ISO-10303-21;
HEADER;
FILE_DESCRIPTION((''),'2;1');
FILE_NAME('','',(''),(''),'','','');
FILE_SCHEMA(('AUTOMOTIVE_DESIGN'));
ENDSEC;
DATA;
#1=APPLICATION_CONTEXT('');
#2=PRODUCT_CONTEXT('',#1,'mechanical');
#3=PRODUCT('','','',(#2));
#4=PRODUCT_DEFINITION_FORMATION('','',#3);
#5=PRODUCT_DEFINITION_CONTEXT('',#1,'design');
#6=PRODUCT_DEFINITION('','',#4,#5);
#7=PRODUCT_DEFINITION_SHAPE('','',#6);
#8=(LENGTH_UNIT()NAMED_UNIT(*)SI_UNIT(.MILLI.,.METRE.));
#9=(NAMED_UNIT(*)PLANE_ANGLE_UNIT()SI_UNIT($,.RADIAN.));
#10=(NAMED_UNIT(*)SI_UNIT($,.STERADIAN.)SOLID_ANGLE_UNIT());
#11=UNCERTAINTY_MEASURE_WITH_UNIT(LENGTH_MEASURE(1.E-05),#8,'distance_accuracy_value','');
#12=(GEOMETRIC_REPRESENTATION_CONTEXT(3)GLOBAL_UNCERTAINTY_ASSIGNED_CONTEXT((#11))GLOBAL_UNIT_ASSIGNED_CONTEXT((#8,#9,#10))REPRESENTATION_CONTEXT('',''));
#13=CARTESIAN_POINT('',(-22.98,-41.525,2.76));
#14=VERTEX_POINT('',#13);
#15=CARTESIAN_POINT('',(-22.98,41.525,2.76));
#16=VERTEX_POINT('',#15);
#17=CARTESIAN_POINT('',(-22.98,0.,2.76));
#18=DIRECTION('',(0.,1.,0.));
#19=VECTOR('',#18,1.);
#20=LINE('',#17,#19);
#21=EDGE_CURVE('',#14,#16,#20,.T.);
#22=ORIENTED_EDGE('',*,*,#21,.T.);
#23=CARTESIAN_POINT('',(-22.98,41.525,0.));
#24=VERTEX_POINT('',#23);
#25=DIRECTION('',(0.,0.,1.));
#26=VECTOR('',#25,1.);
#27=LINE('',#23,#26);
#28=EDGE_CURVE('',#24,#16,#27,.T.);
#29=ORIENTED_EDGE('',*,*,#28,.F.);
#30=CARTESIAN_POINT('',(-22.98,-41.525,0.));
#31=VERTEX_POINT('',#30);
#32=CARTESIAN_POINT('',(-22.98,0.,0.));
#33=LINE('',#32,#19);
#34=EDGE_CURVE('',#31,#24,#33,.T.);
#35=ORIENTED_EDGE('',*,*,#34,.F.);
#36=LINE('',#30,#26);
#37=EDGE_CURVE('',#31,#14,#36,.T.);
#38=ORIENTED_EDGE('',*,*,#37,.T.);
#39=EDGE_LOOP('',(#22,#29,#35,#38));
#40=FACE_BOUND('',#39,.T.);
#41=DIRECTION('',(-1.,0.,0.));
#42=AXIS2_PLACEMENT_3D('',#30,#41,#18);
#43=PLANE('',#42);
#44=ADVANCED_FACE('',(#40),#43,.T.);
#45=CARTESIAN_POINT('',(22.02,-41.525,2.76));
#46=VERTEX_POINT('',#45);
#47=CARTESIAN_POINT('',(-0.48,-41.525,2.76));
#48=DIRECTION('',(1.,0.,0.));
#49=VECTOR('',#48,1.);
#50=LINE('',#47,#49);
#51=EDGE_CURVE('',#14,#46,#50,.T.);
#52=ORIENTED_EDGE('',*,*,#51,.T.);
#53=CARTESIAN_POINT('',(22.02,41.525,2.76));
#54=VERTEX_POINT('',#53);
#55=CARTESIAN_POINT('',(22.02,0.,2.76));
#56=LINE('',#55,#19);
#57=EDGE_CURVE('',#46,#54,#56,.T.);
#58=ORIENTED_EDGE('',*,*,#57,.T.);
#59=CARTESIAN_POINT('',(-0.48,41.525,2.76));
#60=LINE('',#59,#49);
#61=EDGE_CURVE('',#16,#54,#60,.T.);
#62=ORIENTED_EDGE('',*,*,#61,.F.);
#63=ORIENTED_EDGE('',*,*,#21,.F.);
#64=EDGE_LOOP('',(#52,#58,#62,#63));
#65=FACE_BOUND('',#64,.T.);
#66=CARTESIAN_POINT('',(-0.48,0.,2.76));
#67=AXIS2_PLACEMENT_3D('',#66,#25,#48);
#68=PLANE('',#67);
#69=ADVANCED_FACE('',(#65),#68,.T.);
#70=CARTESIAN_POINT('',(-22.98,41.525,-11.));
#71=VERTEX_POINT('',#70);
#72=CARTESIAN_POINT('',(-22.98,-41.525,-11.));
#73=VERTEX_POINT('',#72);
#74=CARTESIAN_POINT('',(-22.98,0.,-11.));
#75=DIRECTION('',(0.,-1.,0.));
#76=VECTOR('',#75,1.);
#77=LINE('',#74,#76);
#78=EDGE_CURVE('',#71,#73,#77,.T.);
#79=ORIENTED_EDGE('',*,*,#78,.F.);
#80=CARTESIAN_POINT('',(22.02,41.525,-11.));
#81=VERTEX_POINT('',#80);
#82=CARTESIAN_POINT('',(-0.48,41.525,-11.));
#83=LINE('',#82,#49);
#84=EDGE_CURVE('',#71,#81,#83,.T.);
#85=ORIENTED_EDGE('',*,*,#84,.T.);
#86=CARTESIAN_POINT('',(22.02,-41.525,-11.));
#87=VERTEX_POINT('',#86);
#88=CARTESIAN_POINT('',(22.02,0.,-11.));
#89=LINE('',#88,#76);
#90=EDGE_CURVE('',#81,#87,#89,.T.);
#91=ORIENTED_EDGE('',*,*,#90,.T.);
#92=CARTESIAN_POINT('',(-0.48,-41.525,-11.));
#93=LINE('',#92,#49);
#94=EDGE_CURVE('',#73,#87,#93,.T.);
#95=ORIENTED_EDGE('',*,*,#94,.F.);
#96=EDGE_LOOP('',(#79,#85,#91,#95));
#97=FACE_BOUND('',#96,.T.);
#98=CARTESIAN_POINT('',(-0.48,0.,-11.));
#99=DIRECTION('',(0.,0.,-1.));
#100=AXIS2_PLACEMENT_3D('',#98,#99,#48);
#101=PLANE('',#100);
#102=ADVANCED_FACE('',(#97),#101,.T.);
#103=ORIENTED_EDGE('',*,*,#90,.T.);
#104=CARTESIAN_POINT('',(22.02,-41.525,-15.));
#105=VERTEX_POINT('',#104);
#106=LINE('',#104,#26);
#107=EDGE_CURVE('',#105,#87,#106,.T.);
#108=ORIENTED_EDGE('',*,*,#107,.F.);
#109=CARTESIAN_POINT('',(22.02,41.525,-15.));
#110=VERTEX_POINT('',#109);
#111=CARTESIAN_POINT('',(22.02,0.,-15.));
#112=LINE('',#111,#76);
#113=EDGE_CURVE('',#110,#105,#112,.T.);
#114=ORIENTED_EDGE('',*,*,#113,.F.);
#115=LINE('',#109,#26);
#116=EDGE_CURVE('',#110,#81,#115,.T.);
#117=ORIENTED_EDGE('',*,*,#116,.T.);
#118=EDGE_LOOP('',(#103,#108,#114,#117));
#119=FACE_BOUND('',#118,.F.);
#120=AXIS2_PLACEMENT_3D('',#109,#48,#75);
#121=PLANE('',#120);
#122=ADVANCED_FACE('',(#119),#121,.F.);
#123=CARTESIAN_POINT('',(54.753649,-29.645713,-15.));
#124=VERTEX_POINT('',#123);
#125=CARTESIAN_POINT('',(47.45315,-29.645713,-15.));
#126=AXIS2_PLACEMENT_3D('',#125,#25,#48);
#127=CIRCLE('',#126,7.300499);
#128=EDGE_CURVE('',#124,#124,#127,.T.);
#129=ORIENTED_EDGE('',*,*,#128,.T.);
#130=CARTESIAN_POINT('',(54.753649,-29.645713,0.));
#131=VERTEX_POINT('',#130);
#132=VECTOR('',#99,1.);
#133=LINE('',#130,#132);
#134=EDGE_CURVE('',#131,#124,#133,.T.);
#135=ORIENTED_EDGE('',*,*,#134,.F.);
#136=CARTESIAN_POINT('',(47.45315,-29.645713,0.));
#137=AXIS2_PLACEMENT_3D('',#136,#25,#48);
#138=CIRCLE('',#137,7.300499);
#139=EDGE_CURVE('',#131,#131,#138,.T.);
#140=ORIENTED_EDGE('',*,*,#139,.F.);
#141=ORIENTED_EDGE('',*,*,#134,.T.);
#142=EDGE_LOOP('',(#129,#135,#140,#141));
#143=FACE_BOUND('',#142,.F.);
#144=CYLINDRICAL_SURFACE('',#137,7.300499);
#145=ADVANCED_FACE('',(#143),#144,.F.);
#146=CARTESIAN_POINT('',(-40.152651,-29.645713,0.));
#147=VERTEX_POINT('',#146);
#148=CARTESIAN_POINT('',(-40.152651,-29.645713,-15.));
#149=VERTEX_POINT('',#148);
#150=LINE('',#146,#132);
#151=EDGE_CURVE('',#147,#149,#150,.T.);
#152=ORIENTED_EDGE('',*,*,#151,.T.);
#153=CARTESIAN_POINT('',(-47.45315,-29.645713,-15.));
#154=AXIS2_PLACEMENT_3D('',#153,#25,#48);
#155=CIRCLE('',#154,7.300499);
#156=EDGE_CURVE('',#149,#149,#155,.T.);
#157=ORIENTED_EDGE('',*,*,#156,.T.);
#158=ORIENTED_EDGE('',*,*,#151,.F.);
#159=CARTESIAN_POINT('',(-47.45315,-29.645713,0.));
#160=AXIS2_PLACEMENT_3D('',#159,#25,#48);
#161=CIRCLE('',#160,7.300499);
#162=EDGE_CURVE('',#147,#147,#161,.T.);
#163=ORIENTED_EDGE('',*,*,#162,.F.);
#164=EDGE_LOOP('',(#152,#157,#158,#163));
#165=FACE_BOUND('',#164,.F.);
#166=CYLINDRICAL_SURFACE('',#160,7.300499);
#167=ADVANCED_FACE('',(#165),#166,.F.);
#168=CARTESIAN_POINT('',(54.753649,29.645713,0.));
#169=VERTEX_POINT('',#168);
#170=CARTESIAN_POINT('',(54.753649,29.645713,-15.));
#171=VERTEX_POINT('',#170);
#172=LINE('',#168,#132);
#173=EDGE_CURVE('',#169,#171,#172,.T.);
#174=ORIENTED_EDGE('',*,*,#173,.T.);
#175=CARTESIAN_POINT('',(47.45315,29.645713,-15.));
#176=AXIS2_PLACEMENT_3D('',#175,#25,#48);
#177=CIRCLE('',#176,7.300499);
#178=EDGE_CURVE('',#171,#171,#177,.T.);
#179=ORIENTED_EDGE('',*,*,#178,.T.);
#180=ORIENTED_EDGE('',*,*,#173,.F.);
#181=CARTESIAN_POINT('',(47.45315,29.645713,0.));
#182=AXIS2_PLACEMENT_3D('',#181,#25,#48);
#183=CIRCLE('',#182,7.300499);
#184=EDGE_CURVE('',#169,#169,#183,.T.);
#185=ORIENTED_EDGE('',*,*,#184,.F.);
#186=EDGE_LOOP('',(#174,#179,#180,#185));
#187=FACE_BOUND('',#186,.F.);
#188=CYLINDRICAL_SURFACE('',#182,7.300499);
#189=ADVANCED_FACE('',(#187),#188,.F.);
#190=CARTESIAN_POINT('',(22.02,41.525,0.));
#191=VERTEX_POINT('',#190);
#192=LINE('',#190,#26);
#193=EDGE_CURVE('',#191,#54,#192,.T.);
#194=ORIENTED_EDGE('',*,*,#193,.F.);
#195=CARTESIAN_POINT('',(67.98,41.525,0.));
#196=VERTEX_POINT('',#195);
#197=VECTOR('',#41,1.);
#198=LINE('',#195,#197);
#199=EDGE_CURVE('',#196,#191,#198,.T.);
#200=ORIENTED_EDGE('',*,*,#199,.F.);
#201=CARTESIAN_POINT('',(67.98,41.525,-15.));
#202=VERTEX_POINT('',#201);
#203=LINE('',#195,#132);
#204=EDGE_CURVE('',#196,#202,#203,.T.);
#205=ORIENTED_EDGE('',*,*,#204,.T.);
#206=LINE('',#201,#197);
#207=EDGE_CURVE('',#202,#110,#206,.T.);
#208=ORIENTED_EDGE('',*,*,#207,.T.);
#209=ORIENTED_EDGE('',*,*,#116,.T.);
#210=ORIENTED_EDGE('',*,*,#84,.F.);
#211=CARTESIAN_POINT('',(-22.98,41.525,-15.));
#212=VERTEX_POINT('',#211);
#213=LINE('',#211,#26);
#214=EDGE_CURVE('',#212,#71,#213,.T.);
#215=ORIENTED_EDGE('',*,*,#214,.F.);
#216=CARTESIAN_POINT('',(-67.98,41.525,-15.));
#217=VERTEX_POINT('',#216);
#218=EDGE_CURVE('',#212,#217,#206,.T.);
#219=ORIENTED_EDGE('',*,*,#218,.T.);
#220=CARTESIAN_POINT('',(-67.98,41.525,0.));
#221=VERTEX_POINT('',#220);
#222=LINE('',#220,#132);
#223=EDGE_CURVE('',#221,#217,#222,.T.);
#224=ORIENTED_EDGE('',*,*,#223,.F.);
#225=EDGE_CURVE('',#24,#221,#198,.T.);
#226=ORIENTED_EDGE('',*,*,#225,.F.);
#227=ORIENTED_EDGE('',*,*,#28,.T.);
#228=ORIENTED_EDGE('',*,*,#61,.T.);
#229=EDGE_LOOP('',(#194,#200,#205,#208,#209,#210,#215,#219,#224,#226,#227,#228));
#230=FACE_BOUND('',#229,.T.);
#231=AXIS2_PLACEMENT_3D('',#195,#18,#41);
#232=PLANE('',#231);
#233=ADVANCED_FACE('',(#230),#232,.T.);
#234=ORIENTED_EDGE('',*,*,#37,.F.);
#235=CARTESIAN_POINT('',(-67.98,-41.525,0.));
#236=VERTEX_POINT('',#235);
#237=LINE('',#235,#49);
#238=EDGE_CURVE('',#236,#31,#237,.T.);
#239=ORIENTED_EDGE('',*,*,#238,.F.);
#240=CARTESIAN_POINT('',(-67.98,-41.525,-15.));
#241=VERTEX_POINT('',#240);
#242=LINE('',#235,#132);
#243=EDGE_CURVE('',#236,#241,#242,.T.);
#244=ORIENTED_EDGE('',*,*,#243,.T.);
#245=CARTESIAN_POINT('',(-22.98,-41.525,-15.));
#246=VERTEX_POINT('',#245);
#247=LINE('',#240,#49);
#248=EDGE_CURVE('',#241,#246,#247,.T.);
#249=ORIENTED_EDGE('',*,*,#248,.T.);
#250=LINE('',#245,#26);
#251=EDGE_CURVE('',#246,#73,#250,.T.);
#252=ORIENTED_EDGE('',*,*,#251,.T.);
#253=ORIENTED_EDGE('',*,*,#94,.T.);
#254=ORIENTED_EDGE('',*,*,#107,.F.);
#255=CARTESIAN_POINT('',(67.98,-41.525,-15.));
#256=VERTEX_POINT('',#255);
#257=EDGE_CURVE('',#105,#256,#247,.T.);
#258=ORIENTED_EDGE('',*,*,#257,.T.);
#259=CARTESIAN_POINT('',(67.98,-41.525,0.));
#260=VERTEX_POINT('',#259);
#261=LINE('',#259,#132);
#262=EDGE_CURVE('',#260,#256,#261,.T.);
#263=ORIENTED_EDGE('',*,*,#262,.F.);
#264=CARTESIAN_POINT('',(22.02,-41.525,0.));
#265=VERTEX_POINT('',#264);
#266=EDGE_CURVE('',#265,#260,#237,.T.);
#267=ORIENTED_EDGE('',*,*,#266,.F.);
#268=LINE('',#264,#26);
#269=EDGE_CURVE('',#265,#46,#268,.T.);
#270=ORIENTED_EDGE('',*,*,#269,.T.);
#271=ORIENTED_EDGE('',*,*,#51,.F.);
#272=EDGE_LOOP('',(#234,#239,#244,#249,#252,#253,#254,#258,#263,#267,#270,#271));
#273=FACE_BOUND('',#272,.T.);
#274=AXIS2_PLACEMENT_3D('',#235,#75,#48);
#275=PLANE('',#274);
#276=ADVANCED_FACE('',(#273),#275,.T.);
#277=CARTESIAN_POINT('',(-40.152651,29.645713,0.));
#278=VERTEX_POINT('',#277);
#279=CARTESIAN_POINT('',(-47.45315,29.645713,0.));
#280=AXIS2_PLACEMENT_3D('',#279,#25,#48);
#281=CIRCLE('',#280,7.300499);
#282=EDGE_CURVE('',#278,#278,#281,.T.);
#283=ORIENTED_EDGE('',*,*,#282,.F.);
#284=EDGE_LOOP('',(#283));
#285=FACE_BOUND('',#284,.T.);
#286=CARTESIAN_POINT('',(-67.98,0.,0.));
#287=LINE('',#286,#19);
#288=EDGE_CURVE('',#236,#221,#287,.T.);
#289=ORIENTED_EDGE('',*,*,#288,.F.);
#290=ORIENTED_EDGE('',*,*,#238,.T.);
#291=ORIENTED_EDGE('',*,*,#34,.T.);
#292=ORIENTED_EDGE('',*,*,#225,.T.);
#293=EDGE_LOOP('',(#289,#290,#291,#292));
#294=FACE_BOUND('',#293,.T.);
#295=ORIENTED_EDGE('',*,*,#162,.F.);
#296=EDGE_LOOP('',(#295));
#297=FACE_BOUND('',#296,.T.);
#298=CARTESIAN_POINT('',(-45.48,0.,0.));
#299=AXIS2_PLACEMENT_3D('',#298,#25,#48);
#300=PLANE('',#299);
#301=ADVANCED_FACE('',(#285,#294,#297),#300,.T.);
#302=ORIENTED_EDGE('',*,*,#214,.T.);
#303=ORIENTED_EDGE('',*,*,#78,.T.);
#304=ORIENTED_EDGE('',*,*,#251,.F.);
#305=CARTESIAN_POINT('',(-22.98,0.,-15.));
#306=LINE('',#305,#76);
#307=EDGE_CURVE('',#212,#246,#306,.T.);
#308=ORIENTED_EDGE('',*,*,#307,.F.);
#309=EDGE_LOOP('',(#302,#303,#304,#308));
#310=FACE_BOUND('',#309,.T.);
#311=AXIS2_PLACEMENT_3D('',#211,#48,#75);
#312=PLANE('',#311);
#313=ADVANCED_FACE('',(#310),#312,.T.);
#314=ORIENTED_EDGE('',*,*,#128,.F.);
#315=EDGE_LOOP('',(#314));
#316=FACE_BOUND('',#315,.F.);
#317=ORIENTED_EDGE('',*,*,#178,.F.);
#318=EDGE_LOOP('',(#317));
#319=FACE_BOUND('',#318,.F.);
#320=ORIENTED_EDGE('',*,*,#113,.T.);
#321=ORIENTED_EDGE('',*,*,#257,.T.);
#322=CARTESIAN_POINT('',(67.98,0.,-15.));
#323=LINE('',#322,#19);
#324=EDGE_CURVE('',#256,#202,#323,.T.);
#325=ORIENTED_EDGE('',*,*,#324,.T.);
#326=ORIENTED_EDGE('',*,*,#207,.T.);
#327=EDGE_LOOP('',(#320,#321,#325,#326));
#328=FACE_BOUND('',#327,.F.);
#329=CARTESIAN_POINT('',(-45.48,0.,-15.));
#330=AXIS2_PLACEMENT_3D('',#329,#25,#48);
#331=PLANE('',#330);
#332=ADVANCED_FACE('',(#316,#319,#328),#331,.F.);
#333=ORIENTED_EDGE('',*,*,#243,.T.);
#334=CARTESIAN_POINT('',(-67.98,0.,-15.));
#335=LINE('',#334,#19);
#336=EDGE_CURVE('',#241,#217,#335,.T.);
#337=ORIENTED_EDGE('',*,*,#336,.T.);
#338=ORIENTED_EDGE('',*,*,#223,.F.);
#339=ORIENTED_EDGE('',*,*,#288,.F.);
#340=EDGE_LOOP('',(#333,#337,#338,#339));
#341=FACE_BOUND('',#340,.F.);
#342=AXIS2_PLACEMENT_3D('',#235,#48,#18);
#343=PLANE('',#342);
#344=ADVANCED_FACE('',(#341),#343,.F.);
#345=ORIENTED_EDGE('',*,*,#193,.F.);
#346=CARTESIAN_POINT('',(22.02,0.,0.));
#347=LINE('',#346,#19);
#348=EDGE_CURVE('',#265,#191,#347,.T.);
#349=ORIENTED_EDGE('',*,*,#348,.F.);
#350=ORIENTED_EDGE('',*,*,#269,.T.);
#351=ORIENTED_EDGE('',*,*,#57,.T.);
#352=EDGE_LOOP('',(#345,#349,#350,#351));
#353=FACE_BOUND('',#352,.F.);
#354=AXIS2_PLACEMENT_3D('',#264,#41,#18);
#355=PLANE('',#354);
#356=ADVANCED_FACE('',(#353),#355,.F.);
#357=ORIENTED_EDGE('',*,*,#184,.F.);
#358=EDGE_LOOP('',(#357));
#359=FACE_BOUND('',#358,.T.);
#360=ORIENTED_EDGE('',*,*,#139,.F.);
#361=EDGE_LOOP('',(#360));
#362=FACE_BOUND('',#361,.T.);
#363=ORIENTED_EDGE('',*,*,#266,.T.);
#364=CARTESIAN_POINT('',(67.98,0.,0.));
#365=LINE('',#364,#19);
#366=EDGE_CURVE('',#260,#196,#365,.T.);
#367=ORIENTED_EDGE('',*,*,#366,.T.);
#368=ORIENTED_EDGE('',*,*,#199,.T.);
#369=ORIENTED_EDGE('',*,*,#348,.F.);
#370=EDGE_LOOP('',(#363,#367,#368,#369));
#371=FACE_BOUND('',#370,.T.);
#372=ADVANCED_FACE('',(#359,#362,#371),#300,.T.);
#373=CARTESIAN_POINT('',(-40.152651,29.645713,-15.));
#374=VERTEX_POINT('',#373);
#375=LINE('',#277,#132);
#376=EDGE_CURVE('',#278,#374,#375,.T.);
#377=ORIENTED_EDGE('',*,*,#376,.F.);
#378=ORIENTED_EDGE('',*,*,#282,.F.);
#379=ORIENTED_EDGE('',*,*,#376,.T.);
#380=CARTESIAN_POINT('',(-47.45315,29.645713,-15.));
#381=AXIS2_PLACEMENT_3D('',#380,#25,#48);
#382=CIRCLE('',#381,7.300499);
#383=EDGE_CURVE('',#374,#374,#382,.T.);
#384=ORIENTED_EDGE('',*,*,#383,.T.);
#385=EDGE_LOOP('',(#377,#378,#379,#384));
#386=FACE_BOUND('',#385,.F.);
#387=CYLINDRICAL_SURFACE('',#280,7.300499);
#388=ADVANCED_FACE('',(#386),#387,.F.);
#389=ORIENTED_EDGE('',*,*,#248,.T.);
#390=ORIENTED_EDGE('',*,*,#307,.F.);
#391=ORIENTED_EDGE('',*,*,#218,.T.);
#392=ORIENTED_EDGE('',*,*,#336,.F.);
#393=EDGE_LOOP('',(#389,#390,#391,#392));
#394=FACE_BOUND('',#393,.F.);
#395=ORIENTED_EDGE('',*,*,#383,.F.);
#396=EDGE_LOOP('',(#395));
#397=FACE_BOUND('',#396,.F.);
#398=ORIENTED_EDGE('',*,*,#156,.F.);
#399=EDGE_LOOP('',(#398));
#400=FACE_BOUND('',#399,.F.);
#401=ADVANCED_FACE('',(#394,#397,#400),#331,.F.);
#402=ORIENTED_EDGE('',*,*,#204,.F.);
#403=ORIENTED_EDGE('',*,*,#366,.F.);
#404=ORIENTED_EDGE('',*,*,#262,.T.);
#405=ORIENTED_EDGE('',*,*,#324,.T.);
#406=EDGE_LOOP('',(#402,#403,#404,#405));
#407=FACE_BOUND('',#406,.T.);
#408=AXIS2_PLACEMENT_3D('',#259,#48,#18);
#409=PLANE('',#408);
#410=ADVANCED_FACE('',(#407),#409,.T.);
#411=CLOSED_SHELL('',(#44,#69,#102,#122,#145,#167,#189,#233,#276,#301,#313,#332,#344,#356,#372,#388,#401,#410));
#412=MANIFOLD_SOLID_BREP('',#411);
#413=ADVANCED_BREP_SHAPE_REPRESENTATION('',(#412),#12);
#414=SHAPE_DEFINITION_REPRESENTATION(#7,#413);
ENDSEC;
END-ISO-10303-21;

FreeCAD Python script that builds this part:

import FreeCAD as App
import Part
import Sketcher
Q = App.Units.Quantity

doc = App.newDocument("Part")
body = doc.addObject("PartDesign::Body", "Body")

sketch1 = body.newObject("Sketcher::SketchObject", "Sketch")
sketch1.AttachmentSupport = (doc.getObject("XY_Plane"), [""])
sketch1.MapMode = "FlatFace"
sketch1.addGeometry([
    Part.LineSegment(App.Vector(-67.98, 41.525, 0), App.Vector(-67.98, -41.525, 0)),
    Part.LineSegment(App.Vector(-67.98, -41.525, 0), App.Vector(67.98, -41.525, 0)),
    Part.LineSegment(App.Vector(67.98, -41.525, 0), App.Vector(67.98, 41.525, 0)),
    Part.LineSegment(App.Vector(67.98, 41.525, 0), App.Vector(-67.98, 41.525, 0)),
], False)
sketch1.addConstraint([
    Sketcher.Constraint("Coincident", 0, 2, 1, 1),
    Sketcher.Constraint("Coincident", 1, 2, 2, 1),
    Sketcher.Constraint("Coincident", 2, 2, 3, 1),
    Sketcher.Constraint("Coincident", 3, 2, 0, 1),
    Sketcher.Constraint("Vertical", 0),
    Sketcher.Constraint("Horizontal", 1),
    Sketcher.Constraint("Vertical", 2),
    Sketcher.Constraint("Horizontal", 3),
    Sketcher.Constraint("Symmetric", 0, 2, 2, 2, -1, 1),
    Sketcher.Constraint("DistanceX", 1, 1, 1, 2, Q("135.96 mm")),
    Sketcher.Constraint("DistanceY", 0, 2, 0, 1, Q("83.05 mm")),
])
pad1 = body.newObject("PartDesign::Pad", "Pad")
pad1.Profile = sketch1
pad1.Length = 15
pad1.Reversed = True

sketch2 = body.newObject("Sketcher::SketchObject", "Sketch001")
sketch2.AttachmentSupport = (doc.getObject("XY_Plane"), [""])
sketch2.MapMode = "FlatFace"
sketch2.addGeometry([
    Part.LineSegment(App.Vector(-22.98, 41.525, 0), App.Vector(-22.98, -41.525, 0)),
    Part.LineSegment(App.Vector(-22.98, -41.525, 0), App.Vector(22.02, -41.525, 0)),
    Part.LineSegment(App.Vector(22.02, -41.525, 0), App.Vector(22.02, 41.525, 0)),
    Part.LineSegment(App.Vector(22.02, 41.525, 0), App.Vector(-22.98, 41.525, 0)),
], False)
sketch2.addConstraint([
    Sketcher.Constraint("Coincident", 0, 2, 1, 1),
    Sketcher.Constraint("Coincident", 1, 2, 2, 1),
    Sketcher.Constraint("Coincident", 2, 2, 3, 1),
    Sketcher.Constraint("Coincident", 3, 2, 0, 1),
    Sketcher.Constraint("Vertical", 0),
    Sketcher.Constraint("Horizontal", 1),
    Sketcher.Constraint("Vertical", 2),
    Sketcher.Constraint("Horizontal", 3),
    Sketcher.Constraint("DistanceX", 1, 1, 1, 2, Q("45 mm")),
    Sketcher.Constraint("DistanceY", 0, 2, 0, 1, Q("83.05 mm")),
    Sketcher.Constraint("DistanceX", 0, 2, -1, 1, Q("22.98 mm")),
    Sketcher.Constraint("DistanceY", 0, 2, -1, 1, Q("41.525 mm")),
])
pad2 = body.newObject("PartDesign::Pad", "Pad001")
pad2.Profile = sketch2
pad2.Length = 2.76

sketch3 = body.newObject("Sketcher::SketchObject", "Sketch002")
sketch3.AttachmentSupport = (doc.getObject("XY_Plane"), [""])
sketch3.MapMode = "FlatFace"
sketch3.AttachmentOffset = App.Placement(App.Vector(0, 0, -15), App.Rotation())
sketch3.addGeometry([
    Part.LineSegment(App.Vector(-22.98, -41.525, 0), App.Vector(-22.98, 41.525, 0)),
    Part.LineSegment(App.Vector(-22.98, 41.525, 0), App.Vector(22.02, 41.525, 0)),
    Part.LineSegment(App.Vector(22.02, 41.525, 0), App.Vector(22.02, -41.525, 0)),
    Part.LineSegment(App.Vector(22.02, -41.525, 0), App.Vector(-22.98, -41.525, 0)),
], False)
sketch3.addConstraint([
    Sketcher.Constraint("Coincident", 0, 2, 1, 1),
    Sketcher.Constraint("Coincident", 1, 2, 2, 1),
    Sketcher.Constraint("Coincident", 2, 2, 3, 1),
    Sketcher.Constraint("Coincident", 3, 2, 0, 1),
    Sketcher.Constraint("Vertical", 0),
    Sketcher.Constraint("Horizontal", 1),
    Sketcher.Constraint("Vertical", 2),
    Sketcher.Constraint("Horizontal", 3),
    Sketcher.Constraint("DistanceX", 1, 1, 1, 2, Q("45 mm")),
    Sketcher.Constraint("DistanceY", 0, 1, 0, 2, Q("83.05 mm")),
    Sketcher.Constraint("DistanceX", 0, 2, -1, 1, Q("22.98 mm")),
    Sketcher.Constraint("DistanceY", -1, 1, 0, 2, Q("41.525 mm")),
])
pocket1 = body.newObject("PartDesign::Pocket", "Pocket")
pocket1.Profile = sketch3
pocket1.Length = 4
pocket1.Reversed = True

sketch4 = body.newObject("Sketcher::SketchObject", "Sketch003")
sketch4.AttachmentSupport = (doc.getObject("XY_Plane"), [""])
sketch4.MapMode = "FlatFace"
sketch4.addGeometry([
    Part.Circle(App.Vector(-47.45315, 29.645713, 0), App.Vector(0, 0, 1), 7.300499),
    Part.Circle(App.Vector(-47.45315, -29.645713, 0), App.Vector(0, 0, 1), 7.300499),
    Part.Circle(App.Vector(47.45315, 29.645713, 0), App.Vector(0, 0, 1), 7.300499),
    Part.Circle(App.Vector(47.45315, -29.645713, 0), App.Vector(0, 0, 1), 7.300499),
], False)
sketch4.addConstraint([
    Sketcher.Constraint("Equal", 0, 1),
    Sketcher.Constraint("Equal", 1, 2),
    Sketcher.Constraint("Equal", 2, 3),
    Sketcher.Constraint("Symmetric", 1, 3, 2, 3, -1, 1),
    Sketcher.Constraint("Symmetric", 0, 3, 3, 3, -1, 1),
    Sketcher.Constraint("Symmetric", 0, 3, 2, 3, -2),
    Sketcher.Constraint("Diameter", 0, Q("14.600998 mm")),
    Sketcher.Constraint("DistanceX", 0, 3, 2, 3, Q("94.9063 mm")),
    Sketcher.Constraint("DistanceY", -1, 1, 0, 3, Q("29.645713 mm")),
])
pocket2 = body.newObject("PartDesign::Pocket", "Pocket001")
pocket2.Profile = sketch4
pocket2.Type = "ThroughAll"

doc.recompute()
